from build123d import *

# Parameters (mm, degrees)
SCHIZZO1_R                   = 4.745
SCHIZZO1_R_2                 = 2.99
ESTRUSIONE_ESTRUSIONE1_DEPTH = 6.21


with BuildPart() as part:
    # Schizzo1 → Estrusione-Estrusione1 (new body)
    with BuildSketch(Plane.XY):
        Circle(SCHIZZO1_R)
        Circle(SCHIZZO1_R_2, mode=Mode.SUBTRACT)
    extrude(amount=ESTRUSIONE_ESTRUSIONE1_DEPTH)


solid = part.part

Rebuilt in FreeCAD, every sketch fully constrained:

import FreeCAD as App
import Part
import Sketcher
from FreeCAD import Vector
Q = App.Units.Quantity

doc = App.newDocument("Part")
params = doc.addObject("Spreadsheet::Sheet", "Params")
for row, (alias, value) in enumerate([
    ("sketch1_diameter", "9.49 mm"),
    ("sketch1_diameter2", "5.98 mm"),
    ("pad1_length", "6.21 mm"),
], start=1):
    params.set(f"A{row}", alias)
    params.set(f"B{row}", "=" + value)
    params.setAlias(f"B{row}", alias)

body = doc.addObject("PartDesign::Body", "Body")

# Sketch on XY plane
sketch1 = body.newObject("Sketcher::SketchObject", "Sketch")
sketch1.AttachmentSupport = (doc.getObject("XY_Plane"), [""])
sketch1.MapMode = "FlatFace"
sketch1.addGeometry([
    Part.Circle(Vector(0, 0, 0), Vector(0, 0, 1), 4.745),
    Part.Circle(Vector(0, 0, 0), Vector(0, 0, 1), 2.99),
], False)
sketch1.addConstraint([
    Sketcher.Constraint("Coincident", 0, 3, -1, 1),
    Sketcher.Constraint("Coincident", 1, 3, -1, 1),
    Sketcher.Constraint("Diameter", 0, Q("9.49 mm")),
    Sketcher.Constraint("Diameter", 1, Q("5.98 mm")),
])
sketch1.setExpression("Constraints[2]", "Params.sketch1_diameter")
sketch1.setExpression("Constraints[3]", "Params.sketch1_diameter2")
pad1 = body.newObject("PartDesign::Pad", "Pad")
pad1.Profile = sketch1
pad1.setExpression("Length", "Params.pad1_length")

doc.recompute()
